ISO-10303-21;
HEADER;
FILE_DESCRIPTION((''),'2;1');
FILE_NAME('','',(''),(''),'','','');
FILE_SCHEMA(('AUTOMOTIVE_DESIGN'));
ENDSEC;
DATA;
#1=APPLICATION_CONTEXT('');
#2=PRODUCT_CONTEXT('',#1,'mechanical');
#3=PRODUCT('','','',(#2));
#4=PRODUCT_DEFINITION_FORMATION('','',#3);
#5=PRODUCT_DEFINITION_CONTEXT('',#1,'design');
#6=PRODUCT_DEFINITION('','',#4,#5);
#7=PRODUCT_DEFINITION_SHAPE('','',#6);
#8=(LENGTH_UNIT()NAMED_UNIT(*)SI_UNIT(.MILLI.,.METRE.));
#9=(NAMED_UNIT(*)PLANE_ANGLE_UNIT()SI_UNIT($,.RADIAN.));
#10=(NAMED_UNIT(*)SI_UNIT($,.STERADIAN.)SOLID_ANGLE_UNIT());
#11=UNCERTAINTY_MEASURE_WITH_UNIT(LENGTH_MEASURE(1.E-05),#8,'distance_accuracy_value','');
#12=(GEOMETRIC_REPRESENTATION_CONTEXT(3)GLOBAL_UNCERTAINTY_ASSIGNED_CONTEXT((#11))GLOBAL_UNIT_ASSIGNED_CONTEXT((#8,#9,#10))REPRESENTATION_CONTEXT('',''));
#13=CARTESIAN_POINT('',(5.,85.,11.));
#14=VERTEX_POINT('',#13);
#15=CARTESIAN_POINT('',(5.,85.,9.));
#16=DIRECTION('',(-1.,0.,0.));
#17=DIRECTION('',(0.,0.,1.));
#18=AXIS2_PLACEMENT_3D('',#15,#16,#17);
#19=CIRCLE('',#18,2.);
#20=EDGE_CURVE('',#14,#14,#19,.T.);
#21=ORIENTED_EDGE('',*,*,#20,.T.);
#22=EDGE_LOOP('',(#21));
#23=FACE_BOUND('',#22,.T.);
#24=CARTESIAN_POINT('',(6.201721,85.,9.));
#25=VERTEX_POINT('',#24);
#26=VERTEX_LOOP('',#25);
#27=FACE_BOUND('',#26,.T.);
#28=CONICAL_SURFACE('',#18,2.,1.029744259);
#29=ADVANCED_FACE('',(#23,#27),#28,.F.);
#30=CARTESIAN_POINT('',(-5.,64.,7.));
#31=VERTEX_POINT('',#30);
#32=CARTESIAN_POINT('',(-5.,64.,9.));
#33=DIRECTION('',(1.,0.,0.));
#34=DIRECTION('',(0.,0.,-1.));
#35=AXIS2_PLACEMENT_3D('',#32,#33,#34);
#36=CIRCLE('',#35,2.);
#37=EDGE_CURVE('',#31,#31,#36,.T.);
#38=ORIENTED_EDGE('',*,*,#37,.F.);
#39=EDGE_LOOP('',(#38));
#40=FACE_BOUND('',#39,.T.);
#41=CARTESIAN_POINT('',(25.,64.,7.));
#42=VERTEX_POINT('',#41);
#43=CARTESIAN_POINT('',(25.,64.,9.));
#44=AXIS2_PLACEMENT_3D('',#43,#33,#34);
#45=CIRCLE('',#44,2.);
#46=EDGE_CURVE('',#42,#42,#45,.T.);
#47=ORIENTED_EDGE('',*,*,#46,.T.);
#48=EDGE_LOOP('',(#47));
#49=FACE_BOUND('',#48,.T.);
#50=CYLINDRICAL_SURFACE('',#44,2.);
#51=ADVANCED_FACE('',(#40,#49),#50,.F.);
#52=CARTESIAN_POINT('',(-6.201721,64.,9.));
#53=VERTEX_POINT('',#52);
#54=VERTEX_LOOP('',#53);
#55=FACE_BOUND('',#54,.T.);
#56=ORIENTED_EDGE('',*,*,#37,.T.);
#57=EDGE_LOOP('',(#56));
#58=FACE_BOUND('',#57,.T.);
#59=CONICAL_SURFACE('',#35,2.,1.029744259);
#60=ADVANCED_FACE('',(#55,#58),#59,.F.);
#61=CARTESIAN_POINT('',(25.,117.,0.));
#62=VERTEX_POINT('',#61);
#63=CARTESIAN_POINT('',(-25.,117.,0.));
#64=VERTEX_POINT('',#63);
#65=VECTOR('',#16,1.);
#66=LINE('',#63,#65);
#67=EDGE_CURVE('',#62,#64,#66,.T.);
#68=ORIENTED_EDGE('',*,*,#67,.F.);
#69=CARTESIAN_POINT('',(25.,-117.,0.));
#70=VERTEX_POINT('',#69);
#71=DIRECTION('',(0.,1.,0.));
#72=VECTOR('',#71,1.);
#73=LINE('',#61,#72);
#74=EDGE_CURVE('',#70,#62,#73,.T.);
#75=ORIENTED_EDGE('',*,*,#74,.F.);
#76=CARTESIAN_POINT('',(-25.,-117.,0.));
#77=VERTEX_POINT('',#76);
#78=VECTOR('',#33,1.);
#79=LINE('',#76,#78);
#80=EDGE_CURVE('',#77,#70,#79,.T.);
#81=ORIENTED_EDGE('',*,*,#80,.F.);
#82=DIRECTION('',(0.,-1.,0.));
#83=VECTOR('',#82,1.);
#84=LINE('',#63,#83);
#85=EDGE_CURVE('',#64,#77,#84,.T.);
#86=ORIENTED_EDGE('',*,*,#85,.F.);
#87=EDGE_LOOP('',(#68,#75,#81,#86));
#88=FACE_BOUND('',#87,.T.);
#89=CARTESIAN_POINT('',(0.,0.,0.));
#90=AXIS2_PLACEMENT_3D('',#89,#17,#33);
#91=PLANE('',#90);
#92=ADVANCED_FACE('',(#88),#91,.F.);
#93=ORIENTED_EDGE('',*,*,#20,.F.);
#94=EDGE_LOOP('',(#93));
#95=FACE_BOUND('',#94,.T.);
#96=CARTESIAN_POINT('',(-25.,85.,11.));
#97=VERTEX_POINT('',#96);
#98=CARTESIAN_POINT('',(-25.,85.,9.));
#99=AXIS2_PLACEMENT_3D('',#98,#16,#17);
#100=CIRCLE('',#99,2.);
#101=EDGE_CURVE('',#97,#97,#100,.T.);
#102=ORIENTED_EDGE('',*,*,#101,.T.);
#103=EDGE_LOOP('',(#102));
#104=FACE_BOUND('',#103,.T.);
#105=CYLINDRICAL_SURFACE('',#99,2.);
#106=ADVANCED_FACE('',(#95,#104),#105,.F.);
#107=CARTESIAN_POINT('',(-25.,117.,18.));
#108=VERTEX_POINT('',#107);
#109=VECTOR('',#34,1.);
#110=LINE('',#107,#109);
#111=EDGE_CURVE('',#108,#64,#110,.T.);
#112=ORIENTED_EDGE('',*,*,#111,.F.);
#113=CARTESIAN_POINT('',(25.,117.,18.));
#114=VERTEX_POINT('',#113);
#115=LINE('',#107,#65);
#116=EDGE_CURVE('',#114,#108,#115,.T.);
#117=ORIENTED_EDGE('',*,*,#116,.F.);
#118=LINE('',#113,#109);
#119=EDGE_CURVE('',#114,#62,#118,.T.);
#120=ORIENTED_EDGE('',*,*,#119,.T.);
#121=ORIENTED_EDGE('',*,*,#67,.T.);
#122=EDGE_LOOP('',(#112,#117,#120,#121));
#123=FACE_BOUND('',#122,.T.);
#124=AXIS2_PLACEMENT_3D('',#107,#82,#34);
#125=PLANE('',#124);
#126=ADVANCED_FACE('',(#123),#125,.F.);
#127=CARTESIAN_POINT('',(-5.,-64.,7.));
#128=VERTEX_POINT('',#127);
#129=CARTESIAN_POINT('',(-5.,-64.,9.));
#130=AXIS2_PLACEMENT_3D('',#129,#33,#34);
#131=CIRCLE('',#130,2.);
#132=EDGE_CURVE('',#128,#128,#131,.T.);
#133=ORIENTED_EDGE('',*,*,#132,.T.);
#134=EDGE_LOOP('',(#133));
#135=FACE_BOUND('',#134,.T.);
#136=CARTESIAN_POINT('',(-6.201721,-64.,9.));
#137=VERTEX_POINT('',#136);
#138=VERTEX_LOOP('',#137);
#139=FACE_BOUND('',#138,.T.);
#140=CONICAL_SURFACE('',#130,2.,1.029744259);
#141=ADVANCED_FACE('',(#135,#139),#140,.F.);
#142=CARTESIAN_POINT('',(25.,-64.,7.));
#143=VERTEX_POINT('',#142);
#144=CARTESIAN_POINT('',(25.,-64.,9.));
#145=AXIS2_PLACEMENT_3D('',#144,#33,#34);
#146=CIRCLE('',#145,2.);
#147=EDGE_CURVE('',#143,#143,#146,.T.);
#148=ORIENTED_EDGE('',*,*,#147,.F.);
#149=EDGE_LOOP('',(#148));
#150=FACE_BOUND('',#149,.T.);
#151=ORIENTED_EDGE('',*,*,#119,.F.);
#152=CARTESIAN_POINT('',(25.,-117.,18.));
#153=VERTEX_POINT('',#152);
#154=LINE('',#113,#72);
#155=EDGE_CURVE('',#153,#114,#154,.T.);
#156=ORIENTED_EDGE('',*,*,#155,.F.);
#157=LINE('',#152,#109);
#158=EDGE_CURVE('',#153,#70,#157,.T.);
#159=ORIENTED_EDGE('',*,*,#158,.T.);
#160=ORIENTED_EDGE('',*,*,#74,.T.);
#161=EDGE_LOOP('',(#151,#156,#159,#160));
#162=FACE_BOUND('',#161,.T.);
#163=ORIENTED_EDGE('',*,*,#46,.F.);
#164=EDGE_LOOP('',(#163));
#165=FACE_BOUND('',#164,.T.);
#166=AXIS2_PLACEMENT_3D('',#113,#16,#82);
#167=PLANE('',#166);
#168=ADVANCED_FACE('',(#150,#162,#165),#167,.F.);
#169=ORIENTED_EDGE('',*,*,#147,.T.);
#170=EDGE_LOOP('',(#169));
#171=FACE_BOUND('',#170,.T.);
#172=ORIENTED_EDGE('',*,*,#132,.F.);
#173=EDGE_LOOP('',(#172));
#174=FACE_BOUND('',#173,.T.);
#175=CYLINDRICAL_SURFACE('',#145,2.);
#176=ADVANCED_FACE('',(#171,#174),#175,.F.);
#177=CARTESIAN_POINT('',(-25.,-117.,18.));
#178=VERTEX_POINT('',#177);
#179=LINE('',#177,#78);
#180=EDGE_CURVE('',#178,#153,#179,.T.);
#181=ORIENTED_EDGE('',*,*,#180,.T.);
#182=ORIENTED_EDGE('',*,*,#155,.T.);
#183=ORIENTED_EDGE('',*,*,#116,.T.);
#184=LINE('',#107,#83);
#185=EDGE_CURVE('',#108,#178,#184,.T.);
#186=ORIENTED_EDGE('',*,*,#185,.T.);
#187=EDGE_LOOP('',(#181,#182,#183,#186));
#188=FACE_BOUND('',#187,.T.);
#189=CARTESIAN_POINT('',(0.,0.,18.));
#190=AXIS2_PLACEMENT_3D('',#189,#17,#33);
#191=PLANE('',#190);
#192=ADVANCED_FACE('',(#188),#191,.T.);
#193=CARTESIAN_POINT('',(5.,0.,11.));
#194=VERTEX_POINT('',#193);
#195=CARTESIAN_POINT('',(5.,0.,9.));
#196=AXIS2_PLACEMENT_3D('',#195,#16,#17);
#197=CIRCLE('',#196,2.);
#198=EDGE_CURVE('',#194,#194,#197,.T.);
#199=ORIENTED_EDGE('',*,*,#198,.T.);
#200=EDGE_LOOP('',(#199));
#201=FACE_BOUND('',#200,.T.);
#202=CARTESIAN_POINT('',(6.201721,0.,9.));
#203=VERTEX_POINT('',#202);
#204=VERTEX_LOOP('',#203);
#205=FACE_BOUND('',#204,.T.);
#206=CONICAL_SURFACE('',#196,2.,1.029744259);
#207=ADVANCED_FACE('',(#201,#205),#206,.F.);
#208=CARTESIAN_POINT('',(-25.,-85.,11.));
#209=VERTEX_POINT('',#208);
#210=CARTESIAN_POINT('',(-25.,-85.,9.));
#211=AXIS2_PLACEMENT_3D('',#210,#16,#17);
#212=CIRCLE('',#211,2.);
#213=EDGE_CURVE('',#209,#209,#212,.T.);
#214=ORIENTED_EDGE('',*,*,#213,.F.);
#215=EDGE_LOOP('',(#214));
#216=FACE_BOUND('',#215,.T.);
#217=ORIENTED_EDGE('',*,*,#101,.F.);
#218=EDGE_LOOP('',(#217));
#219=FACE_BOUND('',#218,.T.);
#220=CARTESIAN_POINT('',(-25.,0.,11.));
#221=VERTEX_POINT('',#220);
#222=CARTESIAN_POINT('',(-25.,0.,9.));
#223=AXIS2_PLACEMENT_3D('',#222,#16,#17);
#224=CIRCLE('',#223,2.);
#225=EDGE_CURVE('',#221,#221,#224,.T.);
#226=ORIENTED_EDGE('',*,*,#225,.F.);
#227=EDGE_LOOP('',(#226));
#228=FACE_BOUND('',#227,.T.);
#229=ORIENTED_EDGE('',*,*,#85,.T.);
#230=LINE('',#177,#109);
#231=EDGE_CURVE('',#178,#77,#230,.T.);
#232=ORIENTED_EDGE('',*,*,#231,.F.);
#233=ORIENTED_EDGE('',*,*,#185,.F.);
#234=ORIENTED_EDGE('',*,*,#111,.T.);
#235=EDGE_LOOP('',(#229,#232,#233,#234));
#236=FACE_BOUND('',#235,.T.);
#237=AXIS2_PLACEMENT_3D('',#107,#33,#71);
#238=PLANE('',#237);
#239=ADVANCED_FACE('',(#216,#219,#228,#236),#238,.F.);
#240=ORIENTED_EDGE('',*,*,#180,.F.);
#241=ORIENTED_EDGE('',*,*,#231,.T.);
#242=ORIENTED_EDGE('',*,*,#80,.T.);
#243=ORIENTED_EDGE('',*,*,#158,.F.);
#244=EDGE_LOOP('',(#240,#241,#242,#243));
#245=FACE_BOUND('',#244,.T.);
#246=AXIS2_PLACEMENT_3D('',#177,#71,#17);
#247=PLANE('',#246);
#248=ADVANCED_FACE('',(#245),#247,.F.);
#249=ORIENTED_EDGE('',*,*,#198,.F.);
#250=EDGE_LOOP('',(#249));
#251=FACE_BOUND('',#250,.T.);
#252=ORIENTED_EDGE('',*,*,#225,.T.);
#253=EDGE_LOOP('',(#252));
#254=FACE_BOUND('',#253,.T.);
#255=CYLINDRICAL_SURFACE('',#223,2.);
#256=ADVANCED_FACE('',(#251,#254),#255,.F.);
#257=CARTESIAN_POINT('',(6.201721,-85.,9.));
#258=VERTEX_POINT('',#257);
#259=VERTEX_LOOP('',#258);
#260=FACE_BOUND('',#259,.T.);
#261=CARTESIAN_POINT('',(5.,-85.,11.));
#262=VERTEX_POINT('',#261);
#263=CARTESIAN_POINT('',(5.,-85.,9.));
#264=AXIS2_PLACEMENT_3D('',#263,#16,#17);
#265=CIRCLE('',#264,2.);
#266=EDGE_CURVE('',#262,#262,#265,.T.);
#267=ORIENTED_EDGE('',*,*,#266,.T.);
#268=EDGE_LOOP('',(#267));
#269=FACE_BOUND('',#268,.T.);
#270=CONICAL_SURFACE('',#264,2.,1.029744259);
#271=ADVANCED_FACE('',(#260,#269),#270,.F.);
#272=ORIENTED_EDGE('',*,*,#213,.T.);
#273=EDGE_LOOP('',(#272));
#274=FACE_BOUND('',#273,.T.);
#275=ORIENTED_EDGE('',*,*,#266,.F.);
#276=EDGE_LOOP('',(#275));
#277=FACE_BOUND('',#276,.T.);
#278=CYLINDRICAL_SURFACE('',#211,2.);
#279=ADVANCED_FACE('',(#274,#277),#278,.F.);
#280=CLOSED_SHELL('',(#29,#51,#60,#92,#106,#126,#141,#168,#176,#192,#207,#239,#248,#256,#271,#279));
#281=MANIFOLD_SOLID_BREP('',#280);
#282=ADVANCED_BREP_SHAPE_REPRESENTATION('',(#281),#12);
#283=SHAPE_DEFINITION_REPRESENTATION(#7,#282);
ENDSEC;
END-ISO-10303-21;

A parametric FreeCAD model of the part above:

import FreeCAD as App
import Part
import Sketcher
from FreeCAD import Vector


def add_polygon(sketch, points):
    """Adds a closed chain of lines whose ends are joined by coincident constraints."""
    first, n = sketch.GeometryCount, len(points)
    for a, b in zip(points, points[1:] + points[:1]):
        sketch.addGeometry(Part.LineSegment(App.Vector(*a, 0), App.Vector(*b, 0)), False)
    for i in range(n):
        sketch.addConstraint(Sketcher.Constraint("Coincident", first + i, 2, first + (i + 1) % n, 1))

doc = App.newDocument("Part")
params = doc.addObject("Spreadsheet::Sheet", "Params")
for row, (alias, value) in enumerate([
    ("sketch1_width", "50 mm"),
    ("sketch1_height", "234 mm"),
    ("pad1_length", "18 mm"),
    ("sketch2_diameter", "4 mm"),
    ("hole_diameter", "4 mm"),
    ("hole_depth", "30 mm"),
    ("sketch3_diameter", "4 mm"),
    ("hole2_diameter", "4 mm"),
    ("hole2_depth", "30 mm"),
], start=1):
    params.set(f"A{row}", alias)
    params.set(f"B{row}", "=" + value)
    params.setAlias(f"B{row}", alias)

body = doc.addObject("PartDesign::Body", "Body")

# Sketch on XY plane
sketch1 = body.newObject("Sketcher::SketchObject", "Sketch")
sketch1.AttachmentSupport = (doc.getObject("XY_Plane"), [""])
sketch1.MapMode = "FlatFace"
add_polygon(sketch1, [(-25, 117), (-25, -117), (25, -117), (25, 117)])  # lines 0-3
sketch1.addConstraint([
    Sketcher.Constraint("Vertical", 0),
    Sketcher.Constraint("Horizontal", 1),
    Sketcher.Constraint("Vertical", 2),
    Sketcher.Constraint("Horizontal", 3),
    Sketcher.Constraint("Symmetric", 0, 2, 2, 2, -1, 1),
    Sketcher.Constraint("DistanceX", 1, 1, 1, 2, 50.0),
    Sketcher.Constraint("DistanceY", 0, 2, 0, 1, 234.0),
])
sketch1.setExpression("Constraints[9]", "Params.sketch1_width")
sketch1.setExpression("Constraints[10]", "Params.sketch1_height")
pad1 = body.newObject("PartDesign::Pad", "Pad")
pad1.Profile = sketch1
pad1.setExpression("Length", "Params.pad1_length")

# Sketch on YZ plane
sketch2 = body.newObject("Sketcher::SketchObject", "Sketch001")
sketch2.AttachmentSupport = (doc.getObject("YZ_Plane"), [""])
sketch2.MapMode = "FlatFace"
sketch2.AttachmentOffset = App.Placement(Vector(0, 0, 25), App.Rotation())
sketch2.addGeometry([
    Part.Circle(Vector(64, 9, 0), Vector(0, 0, 1), 2),
    Part.Circle(Vector(-64, 9, 0), Vector(0, 0, 1), 2),
], False)
sketch2.addConstraint([
    Sketcher.Constraint("Equal", 0, 1),
    Sketcher.Constraint("Symmetric", 0, 3, 1, 3, -2),
    Sketcher.Constraint("Diameter", 0, 4.0),
    Sketcher.Constraint("DistanceX", -1, 1, 0, 3, 64.0),
    Sketcher.Constraint("DistanceY", -1, 1, 0, 3, 9.0),
])
sketch2.setExpression("Constraints[2]", "Params.sketch2_diameter")
doc.recompute()
hole = body.newObject("PartDesign::Hole", "Hole")
hole.Profile = sketch2
hole.ThreadType = "None"
hole.setExpression("Diameter", "Params.hole_diameter")
hole.DepthType = "Dimension"
hole.setExpression("Depth", "Params.hole_depth")
hole.DrillPoint = "Angled"
hole.DrillPointAngle = 118

# Sketch on YZ plane
sketch3 = body.newObject("Sketcher::SketchObject", "Sketch002")
sketch3.AttachmentSupport = (doc.getObject("YZ_Plane"), [""])
sketch3.MapMode = "FlatFace"
sketch3.AttachmentOffset = App.Placement(Vector(0, 0, -25), App.Rotation())
sketch3.addGeometry([
    Part.Circle(Vector(85, 9, 0), Vector(0, 0, 1), 2),
    Part.Circle(Vector(0, 9, 0), Vector(0, 0, 1), 2),
    Part.Circle(Vector(-85, 9, 0), Vector(0, 0, 1), 2),
], False)
sketch3.addConstraint([
    Sketcher.Constraint("Equal", 0, 1),
    Sketcher.Constraint("Equal", 1, 2),
    Sketcher.Constraint("Symmetric", 0, 3, 2, 3, -2),
    Sketcher.Constraint("PointOnObject", 1, 3, -2),
    Sketcher.Constraint("Horizontal", 0, 3, 1, 3),
    Sketcher.Constraint("Diameter", 0, 4.0),
    Sketcher.Constraint("DistanceX", -1, 1, 0, 3, 85.0),
    Sketcher.Constraint("DistanceY", -1, 1, 0, 3, 9.0),
])
sketch3.setExpression("Constraints[5]", "Params.sketch3_diameter")
doc.recompute()
hole2 = body.newObject("PartDesign::Hole", "Hole001")
hole2.Profile = sketch3
hole2.ThreadType = "None"
hole2.setExpression("Diameter", "Params.hole2_diameter")
hole2.DepthType = "Dimension"
hole2.setExpression("Depth", "Params.hole2_depth")
hole2.DrillPoint = "Angled"
hole2.DrillPointAngle = 118
hole2.Reversed = True

doc.recompute()
